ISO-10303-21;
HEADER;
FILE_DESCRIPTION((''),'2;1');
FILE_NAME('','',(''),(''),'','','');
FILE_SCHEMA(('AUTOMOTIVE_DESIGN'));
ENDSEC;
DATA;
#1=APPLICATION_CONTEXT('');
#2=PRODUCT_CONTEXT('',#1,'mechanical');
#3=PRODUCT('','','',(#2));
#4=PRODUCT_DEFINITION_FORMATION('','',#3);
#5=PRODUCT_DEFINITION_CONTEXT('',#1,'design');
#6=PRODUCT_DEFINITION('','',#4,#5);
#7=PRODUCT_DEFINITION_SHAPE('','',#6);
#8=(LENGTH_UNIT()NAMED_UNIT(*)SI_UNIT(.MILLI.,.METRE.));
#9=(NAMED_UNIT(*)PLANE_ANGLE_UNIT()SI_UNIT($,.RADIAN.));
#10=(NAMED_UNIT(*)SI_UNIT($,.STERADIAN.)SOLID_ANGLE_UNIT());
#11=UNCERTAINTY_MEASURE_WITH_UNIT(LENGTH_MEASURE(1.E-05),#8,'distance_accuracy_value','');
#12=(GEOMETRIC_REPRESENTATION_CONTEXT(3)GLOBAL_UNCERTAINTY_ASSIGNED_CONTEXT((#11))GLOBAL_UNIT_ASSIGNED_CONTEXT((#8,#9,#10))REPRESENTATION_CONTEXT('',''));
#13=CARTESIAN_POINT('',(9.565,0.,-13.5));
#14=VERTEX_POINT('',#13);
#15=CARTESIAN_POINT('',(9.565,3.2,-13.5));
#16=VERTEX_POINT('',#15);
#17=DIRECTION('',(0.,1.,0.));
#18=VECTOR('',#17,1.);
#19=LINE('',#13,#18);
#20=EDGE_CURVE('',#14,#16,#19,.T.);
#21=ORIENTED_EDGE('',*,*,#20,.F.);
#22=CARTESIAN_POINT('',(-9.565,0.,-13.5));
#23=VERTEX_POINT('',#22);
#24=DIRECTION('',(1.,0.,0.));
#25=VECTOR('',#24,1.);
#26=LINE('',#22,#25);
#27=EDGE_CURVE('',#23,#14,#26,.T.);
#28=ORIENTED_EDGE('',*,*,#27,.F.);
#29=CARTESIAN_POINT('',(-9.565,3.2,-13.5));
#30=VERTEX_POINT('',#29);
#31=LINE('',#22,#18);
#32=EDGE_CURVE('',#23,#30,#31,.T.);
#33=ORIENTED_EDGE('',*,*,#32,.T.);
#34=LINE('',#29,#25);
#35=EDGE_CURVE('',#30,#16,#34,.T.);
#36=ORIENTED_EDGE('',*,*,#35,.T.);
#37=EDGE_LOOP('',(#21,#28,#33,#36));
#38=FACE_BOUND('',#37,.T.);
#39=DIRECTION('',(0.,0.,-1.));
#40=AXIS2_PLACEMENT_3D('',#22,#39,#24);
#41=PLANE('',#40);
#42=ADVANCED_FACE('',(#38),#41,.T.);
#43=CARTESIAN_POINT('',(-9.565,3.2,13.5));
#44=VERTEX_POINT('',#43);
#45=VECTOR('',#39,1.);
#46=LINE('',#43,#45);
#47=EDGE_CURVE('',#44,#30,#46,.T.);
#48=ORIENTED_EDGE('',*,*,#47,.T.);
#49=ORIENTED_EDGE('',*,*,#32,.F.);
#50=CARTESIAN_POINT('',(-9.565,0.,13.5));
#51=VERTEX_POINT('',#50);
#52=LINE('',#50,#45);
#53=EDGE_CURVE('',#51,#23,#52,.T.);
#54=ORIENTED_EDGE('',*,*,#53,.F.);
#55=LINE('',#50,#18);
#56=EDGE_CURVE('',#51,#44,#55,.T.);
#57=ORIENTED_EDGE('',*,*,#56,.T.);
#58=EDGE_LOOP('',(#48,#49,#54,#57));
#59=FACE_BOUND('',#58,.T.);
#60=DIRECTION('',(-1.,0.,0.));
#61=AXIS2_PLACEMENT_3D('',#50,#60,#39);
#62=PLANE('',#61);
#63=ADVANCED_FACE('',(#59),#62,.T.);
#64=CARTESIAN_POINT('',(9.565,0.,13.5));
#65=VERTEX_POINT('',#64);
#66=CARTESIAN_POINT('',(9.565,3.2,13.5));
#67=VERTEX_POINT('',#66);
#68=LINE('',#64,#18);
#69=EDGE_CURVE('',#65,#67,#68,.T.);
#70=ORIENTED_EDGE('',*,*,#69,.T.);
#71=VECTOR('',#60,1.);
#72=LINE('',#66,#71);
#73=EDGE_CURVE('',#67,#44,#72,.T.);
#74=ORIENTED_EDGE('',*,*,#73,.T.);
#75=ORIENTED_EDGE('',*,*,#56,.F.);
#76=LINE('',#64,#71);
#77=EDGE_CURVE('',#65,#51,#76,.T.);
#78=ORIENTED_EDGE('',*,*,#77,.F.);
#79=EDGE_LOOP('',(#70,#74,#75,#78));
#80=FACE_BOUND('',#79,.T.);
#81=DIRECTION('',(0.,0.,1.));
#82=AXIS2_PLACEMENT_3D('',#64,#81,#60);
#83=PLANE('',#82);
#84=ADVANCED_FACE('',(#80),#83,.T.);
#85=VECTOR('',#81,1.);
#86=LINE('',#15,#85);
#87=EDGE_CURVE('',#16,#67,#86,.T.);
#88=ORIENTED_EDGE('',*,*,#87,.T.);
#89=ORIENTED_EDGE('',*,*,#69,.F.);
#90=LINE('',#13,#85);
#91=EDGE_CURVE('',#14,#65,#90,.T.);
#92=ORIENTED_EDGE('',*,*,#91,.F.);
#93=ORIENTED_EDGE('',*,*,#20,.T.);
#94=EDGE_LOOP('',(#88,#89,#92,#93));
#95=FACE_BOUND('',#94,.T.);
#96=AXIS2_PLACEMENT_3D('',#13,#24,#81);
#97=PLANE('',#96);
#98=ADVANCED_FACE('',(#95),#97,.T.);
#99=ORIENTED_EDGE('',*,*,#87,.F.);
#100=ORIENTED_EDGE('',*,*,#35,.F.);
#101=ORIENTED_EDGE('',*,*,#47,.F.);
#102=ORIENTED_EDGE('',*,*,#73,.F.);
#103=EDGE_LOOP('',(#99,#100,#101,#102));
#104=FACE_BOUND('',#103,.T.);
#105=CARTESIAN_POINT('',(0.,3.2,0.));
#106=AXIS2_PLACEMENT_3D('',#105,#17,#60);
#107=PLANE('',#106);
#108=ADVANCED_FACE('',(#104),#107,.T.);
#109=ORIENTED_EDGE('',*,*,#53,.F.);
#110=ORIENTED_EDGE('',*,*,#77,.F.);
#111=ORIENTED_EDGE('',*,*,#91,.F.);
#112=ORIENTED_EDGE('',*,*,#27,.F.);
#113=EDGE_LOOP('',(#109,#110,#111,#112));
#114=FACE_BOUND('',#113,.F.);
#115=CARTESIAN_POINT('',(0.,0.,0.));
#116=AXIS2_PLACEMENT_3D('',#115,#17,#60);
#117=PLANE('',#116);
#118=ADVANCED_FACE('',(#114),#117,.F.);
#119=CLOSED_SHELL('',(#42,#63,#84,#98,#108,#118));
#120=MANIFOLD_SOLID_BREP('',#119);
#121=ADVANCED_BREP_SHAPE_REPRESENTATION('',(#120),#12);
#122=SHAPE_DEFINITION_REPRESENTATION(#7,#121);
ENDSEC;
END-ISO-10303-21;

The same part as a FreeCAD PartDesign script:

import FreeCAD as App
import Part
import Sketcher

V = App.Vector


def add_polygon(sketch, points):
    """Adds a closed chain of lines whose ends are joined by coincident constraints."""
    first, n = sketch.GeometryCount, len(points)
    for a, b in zip(points, points[1:] + points[:1]):
        sketch.addGeometry(Part.LineSegment(App.Vector(*a, 0), App.Vector(*b, 0)), False)
    for i in range(n):
        sketch.addConstraint(Sketcher.Constraint("Coincident", first + i, 2, first + (i + 1) % n, 1))

doc = App.newDocument("Part")
body = doc.addObject("PartDesign::Body", "Body")

# Sketch on XZ plane
sketch1 = body.newObject("Sketcher::SketchObject", "Sketch")
sketch1.AttachmentSupport = (doc.getObject("XZ_Plane"), [""])
sketch1.MapMode = "FlatFace"
add_polygon(sketch1, [(9.565, -13.5), (-9.565, -13.5), (-9.565, 13.5), (9.565, 13.5)])  # lines 0-3
sketch1.addConstraint([
    Sketcher.Constraint("Horizontal", 0),
    Sketcher.Constraint("Vertical", 1),
    Sketcher.Constraint("Horizontal", 2),
    Sketcher.Constraint("Vertical", 3),
    Sketcher.Constraint("Symmetric", 0, 2, 2, 2, -1, 1),
    Sketcher.Constraint("DistanceY", 1, 1, 1, 2, 27.0),
    Sketcher.Constraint("DistanceX", 0, 2, 0, 1, 19.13),
])
pad1 = body.newObject("PartDesign::Pad", "Pad")
pad1.Profile = sketch1
pad1.Length = 3.2
pad1.Reversed = True

doc.recompute()
